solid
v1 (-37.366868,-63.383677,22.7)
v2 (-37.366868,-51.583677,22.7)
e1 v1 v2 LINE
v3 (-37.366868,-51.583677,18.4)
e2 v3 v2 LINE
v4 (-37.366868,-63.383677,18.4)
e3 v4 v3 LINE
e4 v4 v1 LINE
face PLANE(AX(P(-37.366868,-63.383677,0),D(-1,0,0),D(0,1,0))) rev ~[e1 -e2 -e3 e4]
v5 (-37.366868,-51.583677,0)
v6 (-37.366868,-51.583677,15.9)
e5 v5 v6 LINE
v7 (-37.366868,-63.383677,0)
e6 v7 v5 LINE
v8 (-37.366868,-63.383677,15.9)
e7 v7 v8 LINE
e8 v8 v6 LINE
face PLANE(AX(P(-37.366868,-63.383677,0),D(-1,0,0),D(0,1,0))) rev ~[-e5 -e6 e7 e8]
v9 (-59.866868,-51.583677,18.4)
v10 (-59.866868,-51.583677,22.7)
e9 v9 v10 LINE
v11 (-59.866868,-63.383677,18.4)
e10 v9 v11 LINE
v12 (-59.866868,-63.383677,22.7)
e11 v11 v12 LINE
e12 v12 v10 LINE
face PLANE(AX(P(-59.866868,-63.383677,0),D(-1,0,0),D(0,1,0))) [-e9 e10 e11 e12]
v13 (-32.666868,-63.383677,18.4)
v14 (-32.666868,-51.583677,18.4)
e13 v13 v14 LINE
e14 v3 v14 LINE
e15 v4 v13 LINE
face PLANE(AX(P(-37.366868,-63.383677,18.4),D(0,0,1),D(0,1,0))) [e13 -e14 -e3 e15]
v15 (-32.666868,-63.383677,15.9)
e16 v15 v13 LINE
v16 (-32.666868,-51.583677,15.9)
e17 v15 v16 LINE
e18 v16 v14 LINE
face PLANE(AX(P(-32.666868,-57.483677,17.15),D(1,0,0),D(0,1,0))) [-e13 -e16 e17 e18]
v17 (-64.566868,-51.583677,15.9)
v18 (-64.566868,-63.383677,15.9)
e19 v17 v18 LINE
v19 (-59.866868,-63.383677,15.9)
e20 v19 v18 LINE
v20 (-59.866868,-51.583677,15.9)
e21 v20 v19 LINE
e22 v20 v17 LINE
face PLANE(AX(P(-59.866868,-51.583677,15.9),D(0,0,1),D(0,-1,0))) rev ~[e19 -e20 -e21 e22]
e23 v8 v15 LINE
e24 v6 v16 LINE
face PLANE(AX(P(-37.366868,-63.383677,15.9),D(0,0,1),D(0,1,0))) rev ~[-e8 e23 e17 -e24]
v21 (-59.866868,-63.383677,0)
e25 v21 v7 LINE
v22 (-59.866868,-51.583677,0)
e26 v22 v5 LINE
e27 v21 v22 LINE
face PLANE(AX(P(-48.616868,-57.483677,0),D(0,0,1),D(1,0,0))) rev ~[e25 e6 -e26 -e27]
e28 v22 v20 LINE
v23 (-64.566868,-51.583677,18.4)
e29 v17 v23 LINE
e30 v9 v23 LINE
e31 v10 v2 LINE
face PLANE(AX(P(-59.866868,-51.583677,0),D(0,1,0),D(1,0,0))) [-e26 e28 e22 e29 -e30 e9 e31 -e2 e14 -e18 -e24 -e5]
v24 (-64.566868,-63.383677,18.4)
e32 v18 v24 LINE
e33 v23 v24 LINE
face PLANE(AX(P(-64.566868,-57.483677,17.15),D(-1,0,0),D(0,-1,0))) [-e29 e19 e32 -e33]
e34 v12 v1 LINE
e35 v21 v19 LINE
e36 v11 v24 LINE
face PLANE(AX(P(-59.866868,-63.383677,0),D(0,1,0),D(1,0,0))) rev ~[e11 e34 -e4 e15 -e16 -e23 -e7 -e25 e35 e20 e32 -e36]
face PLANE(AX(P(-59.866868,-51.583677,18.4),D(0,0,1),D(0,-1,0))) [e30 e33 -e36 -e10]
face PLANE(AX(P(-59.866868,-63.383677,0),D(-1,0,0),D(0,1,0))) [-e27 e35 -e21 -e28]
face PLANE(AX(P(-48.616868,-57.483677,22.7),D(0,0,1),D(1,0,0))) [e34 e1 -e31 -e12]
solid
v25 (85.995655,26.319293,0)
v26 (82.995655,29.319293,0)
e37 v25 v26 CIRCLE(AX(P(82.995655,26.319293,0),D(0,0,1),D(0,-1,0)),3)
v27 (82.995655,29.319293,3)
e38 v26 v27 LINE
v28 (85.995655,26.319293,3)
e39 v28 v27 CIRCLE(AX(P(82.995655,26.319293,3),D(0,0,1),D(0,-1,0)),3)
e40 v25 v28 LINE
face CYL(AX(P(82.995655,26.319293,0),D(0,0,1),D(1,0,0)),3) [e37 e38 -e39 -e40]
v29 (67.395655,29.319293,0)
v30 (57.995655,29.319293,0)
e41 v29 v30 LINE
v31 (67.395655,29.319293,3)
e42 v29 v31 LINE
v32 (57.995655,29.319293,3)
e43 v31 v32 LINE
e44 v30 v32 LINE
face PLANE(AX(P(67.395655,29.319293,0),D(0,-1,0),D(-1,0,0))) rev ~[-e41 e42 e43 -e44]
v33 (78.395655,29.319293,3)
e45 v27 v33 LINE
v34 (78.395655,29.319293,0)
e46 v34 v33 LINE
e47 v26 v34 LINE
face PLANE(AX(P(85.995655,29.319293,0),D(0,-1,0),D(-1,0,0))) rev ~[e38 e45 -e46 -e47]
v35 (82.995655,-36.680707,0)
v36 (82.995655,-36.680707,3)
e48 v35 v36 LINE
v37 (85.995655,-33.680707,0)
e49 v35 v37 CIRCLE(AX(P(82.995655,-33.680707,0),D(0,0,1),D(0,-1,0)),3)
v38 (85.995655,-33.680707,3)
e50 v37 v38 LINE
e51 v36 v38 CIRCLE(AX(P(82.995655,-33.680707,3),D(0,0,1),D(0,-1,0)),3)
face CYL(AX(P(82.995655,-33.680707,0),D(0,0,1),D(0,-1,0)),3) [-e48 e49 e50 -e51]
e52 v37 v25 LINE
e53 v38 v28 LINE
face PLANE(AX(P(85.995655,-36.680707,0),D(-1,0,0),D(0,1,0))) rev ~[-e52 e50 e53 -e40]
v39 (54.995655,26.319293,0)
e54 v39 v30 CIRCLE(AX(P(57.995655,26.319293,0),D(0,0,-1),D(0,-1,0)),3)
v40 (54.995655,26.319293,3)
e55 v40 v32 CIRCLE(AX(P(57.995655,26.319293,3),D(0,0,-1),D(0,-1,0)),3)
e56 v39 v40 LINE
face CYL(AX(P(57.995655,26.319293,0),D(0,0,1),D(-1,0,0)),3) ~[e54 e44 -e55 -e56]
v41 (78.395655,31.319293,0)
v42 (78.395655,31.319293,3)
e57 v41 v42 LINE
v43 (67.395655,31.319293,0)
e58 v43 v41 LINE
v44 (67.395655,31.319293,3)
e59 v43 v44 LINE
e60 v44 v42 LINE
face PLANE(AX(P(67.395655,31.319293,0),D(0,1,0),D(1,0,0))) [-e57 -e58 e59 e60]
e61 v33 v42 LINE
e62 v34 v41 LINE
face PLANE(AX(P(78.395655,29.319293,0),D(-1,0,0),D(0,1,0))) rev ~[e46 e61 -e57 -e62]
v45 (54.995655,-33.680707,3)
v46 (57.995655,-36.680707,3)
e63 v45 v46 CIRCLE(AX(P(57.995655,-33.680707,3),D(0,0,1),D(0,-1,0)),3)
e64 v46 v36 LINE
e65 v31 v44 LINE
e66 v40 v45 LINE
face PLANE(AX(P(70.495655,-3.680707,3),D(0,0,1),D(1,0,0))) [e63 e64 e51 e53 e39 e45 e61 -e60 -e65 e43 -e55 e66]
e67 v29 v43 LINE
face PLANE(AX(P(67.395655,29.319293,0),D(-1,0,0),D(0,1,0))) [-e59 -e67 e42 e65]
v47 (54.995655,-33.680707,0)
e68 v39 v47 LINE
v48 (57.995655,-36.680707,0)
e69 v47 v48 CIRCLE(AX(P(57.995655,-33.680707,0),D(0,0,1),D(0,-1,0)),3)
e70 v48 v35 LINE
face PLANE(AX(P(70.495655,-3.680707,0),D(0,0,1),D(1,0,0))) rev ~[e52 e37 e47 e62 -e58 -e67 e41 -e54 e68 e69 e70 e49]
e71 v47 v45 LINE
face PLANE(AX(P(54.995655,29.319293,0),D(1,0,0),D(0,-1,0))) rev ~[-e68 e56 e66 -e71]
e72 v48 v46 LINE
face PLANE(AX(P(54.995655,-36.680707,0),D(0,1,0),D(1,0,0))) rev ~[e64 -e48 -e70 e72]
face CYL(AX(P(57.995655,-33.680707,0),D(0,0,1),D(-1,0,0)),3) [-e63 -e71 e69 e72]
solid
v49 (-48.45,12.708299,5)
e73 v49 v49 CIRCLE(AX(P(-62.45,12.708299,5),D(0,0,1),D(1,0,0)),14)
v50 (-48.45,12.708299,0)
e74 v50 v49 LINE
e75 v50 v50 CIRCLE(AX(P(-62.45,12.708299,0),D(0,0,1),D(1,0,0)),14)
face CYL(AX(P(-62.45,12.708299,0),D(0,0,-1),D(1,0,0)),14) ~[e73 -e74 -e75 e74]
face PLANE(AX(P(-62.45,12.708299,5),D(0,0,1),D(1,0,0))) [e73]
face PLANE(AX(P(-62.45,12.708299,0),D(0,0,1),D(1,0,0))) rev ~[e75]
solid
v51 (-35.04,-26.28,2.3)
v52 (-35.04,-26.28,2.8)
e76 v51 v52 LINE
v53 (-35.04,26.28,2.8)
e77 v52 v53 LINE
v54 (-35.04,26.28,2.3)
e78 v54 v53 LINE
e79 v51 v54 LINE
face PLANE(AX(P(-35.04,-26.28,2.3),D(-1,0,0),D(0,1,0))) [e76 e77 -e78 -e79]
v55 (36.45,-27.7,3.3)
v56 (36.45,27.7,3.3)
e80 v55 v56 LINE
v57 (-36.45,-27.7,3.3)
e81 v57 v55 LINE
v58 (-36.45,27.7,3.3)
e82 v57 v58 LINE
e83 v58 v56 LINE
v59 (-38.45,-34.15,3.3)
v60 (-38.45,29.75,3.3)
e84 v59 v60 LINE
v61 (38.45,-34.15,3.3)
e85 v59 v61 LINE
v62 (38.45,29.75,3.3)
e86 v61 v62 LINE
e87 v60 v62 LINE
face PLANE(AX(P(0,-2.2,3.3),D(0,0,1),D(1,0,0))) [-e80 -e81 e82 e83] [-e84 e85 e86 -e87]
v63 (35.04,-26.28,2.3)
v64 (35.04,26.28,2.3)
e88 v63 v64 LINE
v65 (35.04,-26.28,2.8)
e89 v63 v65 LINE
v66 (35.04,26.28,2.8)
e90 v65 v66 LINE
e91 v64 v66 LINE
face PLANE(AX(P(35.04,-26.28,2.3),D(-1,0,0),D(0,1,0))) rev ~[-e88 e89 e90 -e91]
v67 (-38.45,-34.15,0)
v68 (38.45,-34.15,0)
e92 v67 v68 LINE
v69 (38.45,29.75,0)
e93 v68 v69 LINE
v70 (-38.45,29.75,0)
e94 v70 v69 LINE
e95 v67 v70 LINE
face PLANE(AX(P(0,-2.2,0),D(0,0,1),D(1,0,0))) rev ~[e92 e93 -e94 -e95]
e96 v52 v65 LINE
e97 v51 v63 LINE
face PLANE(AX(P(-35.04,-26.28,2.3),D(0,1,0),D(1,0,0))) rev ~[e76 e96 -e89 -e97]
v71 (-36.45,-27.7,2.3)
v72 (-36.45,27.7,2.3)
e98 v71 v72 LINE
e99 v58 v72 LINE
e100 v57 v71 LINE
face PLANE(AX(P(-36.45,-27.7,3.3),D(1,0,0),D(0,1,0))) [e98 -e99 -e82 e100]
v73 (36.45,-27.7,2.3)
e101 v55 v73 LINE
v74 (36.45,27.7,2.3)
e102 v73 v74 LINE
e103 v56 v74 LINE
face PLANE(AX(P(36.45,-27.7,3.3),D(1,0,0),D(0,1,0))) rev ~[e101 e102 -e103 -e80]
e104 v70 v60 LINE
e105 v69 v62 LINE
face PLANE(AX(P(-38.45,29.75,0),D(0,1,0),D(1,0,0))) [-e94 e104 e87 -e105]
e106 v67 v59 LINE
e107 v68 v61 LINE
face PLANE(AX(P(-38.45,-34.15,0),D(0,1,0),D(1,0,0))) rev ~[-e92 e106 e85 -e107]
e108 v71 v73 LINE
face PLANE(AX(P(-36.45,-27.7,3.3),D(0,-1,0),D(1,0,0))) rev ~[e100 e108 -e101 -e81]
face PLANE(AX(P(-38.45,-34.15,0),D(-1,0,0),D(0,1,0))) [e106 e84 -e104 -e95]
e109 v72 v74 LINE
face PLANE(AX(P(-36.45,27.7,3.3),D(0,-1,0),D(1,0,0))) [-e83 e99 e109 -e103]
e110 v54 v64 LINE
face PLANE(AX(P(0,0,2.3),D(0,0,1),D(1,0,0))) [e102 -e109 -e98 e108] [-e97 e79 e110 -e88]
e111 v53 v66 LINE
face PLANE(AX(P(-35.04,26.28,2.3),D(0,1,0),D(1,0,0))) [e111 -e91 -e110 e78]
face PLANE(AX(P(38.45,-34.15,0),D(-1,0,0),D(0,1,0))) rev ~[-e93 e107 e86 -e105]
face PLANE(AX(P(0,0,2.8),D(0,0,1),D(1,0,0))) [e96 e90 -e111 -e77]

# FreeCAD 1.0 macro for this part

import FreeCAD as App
import Part
import Sketcher


def edges_at(feature, points):
    """Names of the edges that pass closest to the given points."""
    edges = feature.Shape.Edges
    near = lambda p: min(range(len(edges)), key=lambda i: edges[i].distToShape(Part.Vertex(*p))[0])
    return sorted({f"Edge{near(p) + 1}" for p in points})

doc = App.newDocument("Part")
params = doc.addObject("Spreadsheet::Sheet", "Params")
for row, (alias, value) in enumerate([
    ("sketch1_width", "76.9 mm"),
    ("sketch1_height", "63.9 mm"),
    ("pad1_length", "3.3 mm"),
    ("sketch2_width", "72.9 mm"),
    ("sketch2_height", "55.4 mm"),
    ("pocket1_length", "1 mm"),
    ("sketch3_width", "70.08 mm"),
    ("sketch3_height", "52.56 mm"),
    ("pad2_length", "0.5 mm"),
    ("sketch4_diameter", "28 mm"),
    ("pad3_length", "5 mm"),
    ("sketch5_width", "31 mm"),
    ("sketch5_width2", "11 mm"),
    ("sketch5_height", "66 mm"),
    ("sketch5_height2", "2 mm"),
    ("sketch5_width3", "7.6 mm"),
    ("pad4_length", "3 mm"),
    ("fillet_radius", "3 mm"),
    ("sketch6_width", "22.5 mm"),
    ("sketch6_height", "11.8 mm"),
    ("pad5_length", "22.7 mm"),
    ("sketch7_width", "11.8 mm"),
    ("sketch7_height", "2.5 mm"),
    ("pad6_length", "4.7 mm"),
    ("sketch8_width", "11.8 mm"),
    ("sketch8_height", "2.5 mm"),
    ("pad7_length", "4.7 mm"),
], start=1):
    params.set(f"A{row}", alias)
    params.set(f"B{row}", "=" + value)
    params.setAlias(f"B{row}", alias)

body = doc.addObject("PartDesign::Body", "Body")

sketch1 = body.newObject("Sketcher::SketchObject", "Sketch")
sketch1.AttachmentSupport = (doc.getObject("XY_Plane"), [""])
sketch1.MapMode = "FlatFace"
sketch1.addGeometry([
    Part.LineSegment(App.Vector(-38, 30, 0), App.Vector(-38, -34, 0)),
    Part.LineSegment(App.Vector(-38, -34, 0), App.Vector(38, -34, 0)),
    Part.LineSegment(App.Vector(38, -34, 0), App.Vector(38, 30, 0)),
    Part.LineSegment(App.Vector(38, 30, 0), App.Vector(-38, 30, 0)),
], False)
sketch1.addConstraint([
    Sketcher.Constraint("Coincident", 0, 2, 1, 1),
    Sketcher.Constraint("Coincident", 1, 2, 2, 1),
    Sketcher.Constraint("Coincident", 2, 2, 3, 1),
    Sketcher.Constraint("Coincident", 3, 2, 0, 1),
    Sketcher.Constraint("Vertical", 0),
    Sketcher.Constraint("Horizontal", 1),
    Sketcher.Constraint("Vertical", 2),
    Sketcher.Constraint("Horizontal", 3),
    Sketcher.Constraint("DistanceX", 1, 1, 1, 2, 76.9),
    Sketcher.Constraint("DistanceY", 0, 2, 0, 1, 63.9),
    Sketcher.Constraint("DistanceX", 0, 2, -1, 1, 38.45),
    Sketcher.Constraint("DistanceY", 0, 2, -1, 1, 34.15),
])
sketch1.setExpression("Constraints[8]", "Params.sketch1_width")
sketch1.setExpression("Constraints[9]", "Params.sketch1_height")
pad1 = body.newObject("PartDesign::Pad", "Pad")
pad1.Profile = sketch1
pad1.setExpression("Length", "Params.pad1_length")

sketch2 = body.newObject("Sketcher::SketchObject", "Sketch001")
sketch2.AttachmentSupport = (doc.getObject("XY_Plane"), [""])
sketch2.MapMode = "FlatFace"
sketch2.AttachmentOffset = App.Placement(App.Vector(0, 0, 3.3), App.Rotation())
sketch2.addGeometry([
    Part.LineSegment(App.Vector(-36, 28, 0), App.Vector(-36, -28, 0)),
    Part.LineSegment(App.Vector(-36, -28, 0), App.Vector(36, -28, 0)),
    Part.LineSegment(App.Vector(36, -28, 0), App.Vector(36, 28, 0)),
    Part.LineSegment(App.Vector(36, 28, 0), App.Vector(-36, 28, 0)),
], False)
sketch2.addConstraint([
    Sketcher.Constraint("Coincident", 0, 2, 1, 1),
    Sketcher.Constraint("Coincident", 1, 2, 2, 1),
    Sketcher.Constraint("Coincident", 2, 2, 3, 1),
    Sketcher.Constraint("Coincident", 3, 2, 0, 1),
    Sketcher.Constraint("Vertical", 0),
    Sketcher.Constraint("Horizontal", 1),
    Sketcher.Constraint("Vertical", 2),
    Sketcher.Constraint("Horizontal", 3),
    Sketcher.Constraint("Symmetric", 0, 2, 2, 2, -1, 1),
    Sketcher.Constraint("DistanceX", 1, 1, 1, 2, 72.9),
    Sketcher.Constraint("DistanceY", 0, 2, 0, 1, 55.4),
])
sketch2.setExpression("Constraints[9]", "Params.sketch2_width")
sketch2.setExpression("Constraints[10]", "Params.sketch2_height")
pocket1 = body.newObject("PartDesign::Pocket", "Pocket")
pocket1.Profile = sketch2
pocket1.setExpression("Length", "Params.pocket1_length")

sketch3 = body.newObject("Sketcher::SketchObject", "Sketch002")
sketch3.AttachmentSupport = (doc.getObject("XY_Plane"), [""])
sketch3.MapMode = "FlatFace"
sketch3.AttachmentOffset = App.Placement(App.Vector(0, 0, 2.3), App.Rotation())
sketch3.addGeometry([
    Part.LineSegment(App.Vector(-35, 26, 0), App.Vector(-35, -26, 0)),
    Part.LineSegment(App.Vector(-35, -26, 0), App.Vector(35, -26, 0)),
    Part.LineSegment(App.Vector(35, -26, 0), App.Vector(35, 26, 0)),
    Part.LineSegment(App.Vector(35, 26, 0), App.Vector(-35, 26, 0)),
], False)
sketch3.addConstraint([
    Sketcher.Constraint("Coincident", 0, 2, 1, 1),
    Sketcher.Constraint("Coincident", 1, 2, 2, 1),
    Sketcher.Constraint("Coincident", 2, 2, 3, 1),
    Sketcher.Constraint("Coincident", 3, 2, 0, 1),
    Sketcher.Constraint("Vertical", 0),
    Sketcher.Constraint("Horizontal", 1),
    Sketcher.Constraint("Vertical", 2),
    Sketcher.Constraint("Horizontal", 3),
    Sketcher.Constraint("Symmetric", 0, 2, 2, 2, -1, 1),
    Sketcher.Constraint("DistanceX", 1, 1, 1, 2, 70.08),
    Sketcher.Constraint("DistanceY", 0, 2, 0, 1, 52.56),
])
sketch3.setExpression("Constraints[9]", "Params.sketch3_width")
sketch3.setExpression("Constraints[10]", "Params.sketch3_height")
pad2 = body.newObject("PartDesign::Pad", "Pad001")
pad2.Profile = sketch3
pad2.setExpression("Length", "Params.pad2_length")
body2 = doc.addObject("PartDesign::Body", "Body001")

sketch4 = body2.newObject("Sketcher::SketchObject", "Sketch003")
sketch4.AttachmentSupport = (doc.getObject("XY_Plane001"), [""])
sketch4.MapMode = "FlatFace"
sketch4.addGeometry(Part.Circle(App.Vector(-62, 13, 0), App.Vector(0, 0, 1), 14), False)
sketch4.addConstraint([
    Sketcher.Constraint("Diameter", 0, 28.0),
    Sketcher.Constraint("DistanceX", 0, 3, -1, 1, 62.45),
    Sketcher.Constraint("DistanceY", -1, 1, 0, 3, 12.708299),
])
sketch4.setExpression("Constraints[0]", "Params.sketch4_diameter")
pad3 = body2.newObject("PartDesign::Pad", "Pad002")
pad3.Profile = sketch4
pad3.setExpression("Length", "Params.pad3_length")
body3 = doc.addObject("PartDesign::Body", "Body002")

sketch5 = body3.newObject("Sketcher::SketchObject", "Sketch004")
sketch5.AttachmentSupport = (doc.getObject("XY_Plane002"), [""])
sketch5.MapMode = "FlatFace"
sketch5.addGeometry([
    Part.LineSegment(App.Vector(55, 29.3, 0), App.Vector(55, -36.7, 0)),
    Part.LineSegment(App.Vector(55, -36.7, 0), App.Vector(86, -36.7, 0)),
    Part.LineSegment(App.Vector(86, -36.7, 0), App.Vector(86, 29.3, 0)),
    Part.LineSegment(App.Vector(86, 29.3, 0), App.Vector(78.4, 29.3, 0)),
    Part.LineSegment(App.Vector(78.4, 29.3, 0), App.Vector(78.4, 31.3, 0)),
    Part.LineSegment(App.Vector(78.4, 31.3, 0), App.Vector(67.4, 31.3, 0)),
    Part.LineSegment(App.Vector(67.4, 31.3, 0), App.Vector(67.4, 29.3, 0)),
    Part.LineSegment(App.Vector(67.4, 29.3, 0), App.Vector(55, 29.3, 0)),
], False)
sketch5.addConstraint([
    Sketcher.Constraint("Coincident", 0, 2, 1, 1),
    Sketcher.Constraint("Coincident", 1, 2, 2, 1),
    Sketcher.Constraint("Coincident", 2, 2, 3, 1),
    Sketcher.Constraint("Coincident", 3, 2, 4, 1),
    Sketcher.Constraint("Coincident", 4, 2, 5, 1),
    Sketcher.Constraint("Coincident", 5, 2, 6, 1),
    Sketcher.Constraint("Coincident", 6, 2, 7, 1),
    Sketcher.Constraint("Coincident", 7, 2, 0, 1),
    Sketcher.Constraint("Vertical", 0),
    Sketcher.Constraint("Horizontal", 1),
    Sketcher.Constraint("Vertical", 2),
    Sketcher.Constraint("Horizontal", 3),
    Sketcher.Constraint("Vertical", 4),
    Sketcher.Constraint("Horizontal", 5),
    Sketcher.Constraint("Vertical", 6),
    Sketcher.Constraint("Horizontal", 7),
    Sketcher.Constraint("Horizontal", 3, 2, 6, 2),
    Sketcher.Constraint("DistanceX", 1, 1, 1, 2, 31.0),
    Sketcher.Constraint("DistanceX", 5, 2, 5, 1, 11.0),
    Sketcher.Constraint("DistanceY", 0, 2, 0, 1, 66.0),
    Sketcher.Constraint("DistanceY", 4, 1, 4, 2, 2.0),
    Sketcher.Constraint("DistanceX", 3, 2, 3, 1, 7.6),
    Sketcher.Constraint("DistanceX", -1, 1, 0, 2, 54.995655),
    Sketcher.Constraint("DistanceY", 0, 2, -1, 1, 36.680707),
])
sketch5.setExpression("Constraints[17]", "Params.sketch5_width")
sketch5.setExpression("Constraints[18]", "Params.sketch5_width2")
sketch5.setExpression("Constraints[19]", "Params.sketch5_height")
sketch5.setExpression("Constraints[20]", "Params.sketch5_height2")
sketch5.setExpression("Constraints[21]", "Params.sketch5_width3")
pad4 = body3.newObject("PartDesign::Pad", "Pad003")
pad4.Profile = sketch5
pad4.setExpression("Length", "Params.pad4_length")
doc.recompute()

fillet = body3.newObject("PartDesign::Fillet", "Fillet")
fillet.Base = (pad4, edges_at(pad4, [
    (85.996, -36.681, 1.5),
    (54.996, -36.681, 1.5),
    (54.996, 29.319, 1.5),
    (85.996, 29.319, 1.5),
]))
fillet.setExpression("Radius", "Params.fillet_radius")
body4 = doc.addObject("PartDesign::Body", "Body003")

sketch6 = body4.newObject("Sketcher::SketchObject", "Sketch005")
sketch6.AttachmentSupport = (doc.getObject("XY_Plane003"), [""])
sketch6.MapMode = "FlatFace"
sketch6.addGeometry([
    Part.LineSegment(App.Vector(-60, -52, 0), App.Vector(-60, -63, 0)),
    Part.LineSegment(App.Vector(-60, -63, 0), App.Vector(-37, -63, 0)),
    Part.LineSegment(App.Vector(-37, -63, 0), App.Vector(-37, -52, 0)),
    Part.LineSegment(App.Vector(-37, -52, 0), App.Vector(-60, -52, 0)),
], False)
sketch6.addConstraint([
    Sketcher.Constraint("Coincident", 0, 2, 1, 1),
    Sketcher.Constraint("Coincident", 1, 2, 2, 1),
    Sketcher.Constraint("Coincident", 2, 2, 3, 1),
    Sketcher.Constraint("Coincident", 3, 2, 0, 1),
    Sketcher.Constraint("Vertical", 0),
    Sketcher.Constraint("Horizontal", 1),
    Sketcher.Constraint("Vertical", 2),
    Sketcher.Constraint("Horizontal", 3),
    Sketcher.Constraint("DistanceX", 1, 1, 1, 2, 22.5),
    Sketcher.Constraint("DistanceY", 0, 2, 0, 1, 11.8),
    Sketcher.Constraint("DistanceX", 0, 2, -1, 1, 59.866868),
    Sketcher.Constraint("DistanceY", 0, 2, -1, 1, 63.383677),
])
sketch6.setExpression("Constraints[8]", "Params.sketch6_width")
sketch6.setExpression("Constraints[9]", "Params.sketch6_height")
pad5 = body4.newObject("PartDesign::Pad", "Pad004")
pad5.Profile = sketch6
pad5.setExpression("Length", "Params.pad5_length")

sketch7 = body4.newObject("Sketcher::SketchObject", "Sketch006")
sketch7.AttachmentSupport = (doc.getObject("YZ_Plane003"), [""])
sketch7.MapMode = "FlatFace"
sketch7.AttachmentOffset = App.Placement(App.Vector(0, 0, -59.866868), App.Rotation())
sketch7.addGeometry([
    Part.LineSegment(App.Vector(-51.6, 18.4, 0), App.Vector(-51.6, 15.9, 0)),
    Part.LineSegment(App.Vector(-51.6, 15.9, 0), App.Vector(-63.4, 15.9, 0)),
    Part.LineSegment(App.Vector(-63.4, 15.9, 0), App.Vector(-63.4, 18.4, 0)),
    Part.LineSegment(App.Vector(-63.4, 18.4, 0), App.Vector(-51.6, 18.4, 0)),
], False)
sketch7.addConstraint([
    Sketcher.Constraint("Coincident", 0, 2, 1, 1),
    Sketcher.Constraint("Coincident", 1, 2, 2, 1),
    Sketcher.Constraint("Coincident", 2, 2, 3, 1),
    Sketcher.Constraint("Coincident", 3, 2, 0, 1),
    Sketcher.Constraint("Vertical", 0),
    Sketcher.Constraint("Horizontal", 1),
    Sketcher.Constraint("Vertical", 2),
    Sketcher.Constraint("Horizontal", 3),
    Sketcher.Constraint("DistanceX", 1, 2, 1, 1, 11.8),
    Sketcher.Constraint("DistanceY", 0, 2, 0, 1, 2.5),
    Sketcher.Constraint("DistanceY", -1, 1, 0, 2, 15.9),
    Sketcher.Constraint("DistanceX", 0, 2, -1, 1, 51.583677),
])
sketch7.setExpression("Constraints[8]", "Params.sketch7_width")
sketch7.setExpression("Constraints[9]", "Params.sketch7_height")
pad6 = body4.newObject("PartDesign::Pad", "Pad005")
pad6.Profile = sketch7
pad6.setExpression("Length", "Params.pad6_length")
pad6.Reversed = True

sketch8 = body4.newObject("Sketcher::SketchObject", "Sketch007")
sketch8.AttachmentSupport = (doc.getObject("YZ_Plane003"), [""])
sketch8.MapMode = "FlatFace"
sketch8.AttachmentOffset = App.Placement(App.Vector(0, 0, -37.366868), App.Rotation())
sketch8.addGeometry([
    Part.LineSegment(App.Vector(-63.4, 18.4, 0), App.Vector(-63.4, 15.9, 0)),
    Part.LineSegment(App.Vector(-63.4, 15.9, 0), App.Vector(-51.6, 15.9, 0)),
    Part.LineSegment(App.Vector(-51.6, 15.9, 0), App.Vector(-51.6, 18.4, 0)),
    Part.LineSegment(App.Vector(-51.6, 18.4, 0), App.Vector(-63.4, 18.4, 0)),
], False)
sketch8.addConstraint([
    Sketcher.Constraint("Coincident", 0, 2, 1, 1),
    Sketcher.Constraint("Coincident", 1, 2, 2, 1),
    Sketcher.Constraint("Coincident", 2, 2, 3, 1),
    Sketcher.Constraint("Coincident", 3, 2, 0, 1),
    Sketcher.Constraint("Vertical", 0),
    Sketcher.Constraint("Horizontal", 1),
    Sketcher.Constraint("Vertical", 2),
    Sketcher.Constraint("Horizontal", 3),
    Sketcher.Constraint("DistanceX", 1, 1, 1, 2, 11.8),
    Sketcher.Constraint("DistanceY", 0, 2, 0, 1, 2.5),
    Sketcher.Constraint("DistanceY", -1, 1, 0, 2, 15.9),
    Sketcher.Constraint("DistanceX", 0, 2, -1, 1, 63.383677),
])
sketch8.setExpression("Constraints[8]", "Params.sketch8_width")
sketch8.setExpression("Constraints[9]", "Params.sketch8_height")
pad7 = body4.newObject("PartDesign::Pad", "Pad006")
pad7.Profile = sketch8
pad7.setExpression("Length", "Params.pad7_length")

doc.recompute()
